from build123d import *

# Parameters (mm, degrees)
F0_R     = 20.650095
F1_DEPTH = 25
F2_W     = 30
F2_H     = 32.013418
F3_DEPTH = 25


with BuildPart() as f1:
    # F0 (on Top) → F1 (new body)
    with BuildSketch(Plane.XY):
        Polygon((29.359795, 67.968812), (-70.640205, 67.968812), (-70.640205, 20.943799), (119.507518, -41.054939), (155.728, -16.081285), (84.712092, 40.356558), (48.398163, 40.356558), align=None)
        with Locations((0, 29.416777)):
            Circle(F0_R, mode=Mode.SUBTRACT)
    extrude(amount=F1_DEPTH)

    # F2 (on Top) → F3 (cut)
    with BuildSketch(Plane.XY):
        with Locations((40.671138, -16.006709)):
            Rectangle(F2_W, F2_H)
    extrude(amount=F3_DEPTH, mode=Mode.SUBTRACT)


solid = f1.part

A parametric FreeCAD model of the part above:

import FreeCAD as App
import Part
import Sketcher
Q = App.Units.Quantity

doc = App.newDocument("Part")
body = doc.addObject("PartDesign::Body", "Body")

# Sketch on XY plane
sketch1 = body.newObject("Sketcher::SketchObject", "Sketch")
sketch1.AttachmentSupport = (doc.getObject("XY_Plane"), [""])
sketch1.MapMode = "FlatFace"
sketch1.addGeometry([
    Part.LineSegment(App.Vector(29, 68, 0), App.Vector(-71, 68, 0)),  # 0
    Part.LineSegment(App.Vector(-71, 68, 0), App.Vector(-71, 21, 0)),  # 1
    Part.LineSegment(App.Vector(-71, 21, 0), App.Vector(120, -41, 0)),  # 2
    Part.LineSegment(App.Vector(120, -41, 0), App.Vector(156, -16, 0)),  # 3
    Part.LineSegment(App.Vector(156, -16, 0), App.Vector(85, 40, 0)),  # 4
    Part.LineSegment(App.Vector(85, 40, 0), App.Vector(48, 40, 0)),  # 5
    Part.LineSegment(App.Vector(48, 40, 0), App.Vector(29, 68, 0)),  # 6
    Part.Circle(App.Vector(0, 29, 0), App.Vector(0, 0, 1), 21),  # 7
], False)
sketch1.addConstraint([
    Sketcher.Constraint("Coincident", 0, 2, 1, 1),
    Sketcher.Constraint("Coincident", 1, 2, 2, 1),
    Sketcher.Constraint("Coincident", 2, 2, 3, 1),
    Sketcher.Constraint("Coincident", 3, 2, 4, 1),
    Sketcher.Constraint("Coincident", 4, 2, 5, 1),
    Sketcher.Constraint("Coincident", 5, 2, 6, 1),
    Sketcher.Constraint("Coincident", 6, 2, 0, 1),
    Sketcher.Constraint("Horizontal", 0),
    Sketcher.Constraint("Vertical", 1),
    Sketcher.Constraint("Horizontal", 5),
    Sketcher.Constraint("PointOnObject", 7, 3, -2),
    Sketcher.Constraint("Perpendicular", 3, 6),
    Sketcher.Constraint("DistanceX", 0, 2, 0, 1, Q("100 mm")),
    Sketcher.Constraint("Distance", 2, Q("200 mm")),
    Sketcher.Constraint("Diameter", 7, Q("41.30019 mm")),
    Sketcher.Constraint("DistanceX", -1, 1, 3, 2, Q("155.728 mm")),
    Sketcher.Constraint("DistanceX", 5, 2, 5, 1, Q("36.313929 mm")),
    Sketcher.Constraint("DistanceY", -1, 1, 1, 2, Q("20.943799 mm")),
    Sketcher.Constraint("Distance", 3, Q("43.995531 mm")),
    Sketcher.Constraint("Distance", 4, Q("90.711021 mm")),
    Sketcher.Constraint("Distance", 6, Q("33.53947 mm")),
    Sketcher.Constraint("DistanceY", 1, 2, 1, 1, Q("47.025013 mm")),
    Sketcher.Constraint("DistanceX", -1, 1, 2, 2, Q("119.507518 mm")),
    Sketcher.Constraint("DistanceY", 1, 2, 7, 3, Q("8.472978 mm")),
])
pad1 = body.newObject("PartDesign::Pad", "Pad")
pad1.Profile = sketch1
pad1.Length = 25

# Sketch on XY plane
sketch2 = body.newObject("Sketcher::SketchObject", "Sketch001")
sketch2.AttachmentSupport = (doc.getObject("XY_Plane"), [""])
sketch2.MapMode = "FlatFace"
sketch2.addGeometry([
    Part.LineSegment(App.Vector(26, 0, 0), App.Vector(26, -32, 0)),
    Part.LineSegment(App.Vector(26, -32, 0), App.Vector(56, -32, 0)),
    Part.LineSegment(App.Vector(56, -32, 0), App.Vector(56, 0, 0)),
    Part.LineSegment(App.Vector(56, 0, 0), App.Vector(26, 0, 0)),
], False)
sketch2.addConstraint([
    Sketcher.Constraint("Coincident", 0, 2, 1, 1),
    Sketcher.Constraint("Coincident", 1, 2, 2, 1),
    Sketcher.Constraint("Coincident", 2, 2, 3, 1),
    Sketcher.Constraint("Coincident", 3, 2, 0, 1),
    Sketcher.Constraint("Vertical", 0),
    Sketcher.Constraint("Horizontal", 1),
    Sketcher.Constraint("Vertical", 2),
    Sketcher.Constraint("Horizontal", 3),
    Sketcher.Constraint("PointOnObject", 2, 2, -1),
    Sketcher.Constraint("DistanceX", 1, 1, 1, 2, Q("30 mm")),
    Sketcher.Constraint("DistanceY", 0, 2, 0, 1, Q("32.013418 mm")),
    Sketcher.Constraint("DistanceX", -1, 1, 0, 2, Q("25.671138 mm")),
])
pocket1 = body.newObject("PartDesign::Pocket", "Pocket")
pocket1.Profile = sketch2
pocket1.Length = 25
pocket1.Reversed = True

doc.recompute()
